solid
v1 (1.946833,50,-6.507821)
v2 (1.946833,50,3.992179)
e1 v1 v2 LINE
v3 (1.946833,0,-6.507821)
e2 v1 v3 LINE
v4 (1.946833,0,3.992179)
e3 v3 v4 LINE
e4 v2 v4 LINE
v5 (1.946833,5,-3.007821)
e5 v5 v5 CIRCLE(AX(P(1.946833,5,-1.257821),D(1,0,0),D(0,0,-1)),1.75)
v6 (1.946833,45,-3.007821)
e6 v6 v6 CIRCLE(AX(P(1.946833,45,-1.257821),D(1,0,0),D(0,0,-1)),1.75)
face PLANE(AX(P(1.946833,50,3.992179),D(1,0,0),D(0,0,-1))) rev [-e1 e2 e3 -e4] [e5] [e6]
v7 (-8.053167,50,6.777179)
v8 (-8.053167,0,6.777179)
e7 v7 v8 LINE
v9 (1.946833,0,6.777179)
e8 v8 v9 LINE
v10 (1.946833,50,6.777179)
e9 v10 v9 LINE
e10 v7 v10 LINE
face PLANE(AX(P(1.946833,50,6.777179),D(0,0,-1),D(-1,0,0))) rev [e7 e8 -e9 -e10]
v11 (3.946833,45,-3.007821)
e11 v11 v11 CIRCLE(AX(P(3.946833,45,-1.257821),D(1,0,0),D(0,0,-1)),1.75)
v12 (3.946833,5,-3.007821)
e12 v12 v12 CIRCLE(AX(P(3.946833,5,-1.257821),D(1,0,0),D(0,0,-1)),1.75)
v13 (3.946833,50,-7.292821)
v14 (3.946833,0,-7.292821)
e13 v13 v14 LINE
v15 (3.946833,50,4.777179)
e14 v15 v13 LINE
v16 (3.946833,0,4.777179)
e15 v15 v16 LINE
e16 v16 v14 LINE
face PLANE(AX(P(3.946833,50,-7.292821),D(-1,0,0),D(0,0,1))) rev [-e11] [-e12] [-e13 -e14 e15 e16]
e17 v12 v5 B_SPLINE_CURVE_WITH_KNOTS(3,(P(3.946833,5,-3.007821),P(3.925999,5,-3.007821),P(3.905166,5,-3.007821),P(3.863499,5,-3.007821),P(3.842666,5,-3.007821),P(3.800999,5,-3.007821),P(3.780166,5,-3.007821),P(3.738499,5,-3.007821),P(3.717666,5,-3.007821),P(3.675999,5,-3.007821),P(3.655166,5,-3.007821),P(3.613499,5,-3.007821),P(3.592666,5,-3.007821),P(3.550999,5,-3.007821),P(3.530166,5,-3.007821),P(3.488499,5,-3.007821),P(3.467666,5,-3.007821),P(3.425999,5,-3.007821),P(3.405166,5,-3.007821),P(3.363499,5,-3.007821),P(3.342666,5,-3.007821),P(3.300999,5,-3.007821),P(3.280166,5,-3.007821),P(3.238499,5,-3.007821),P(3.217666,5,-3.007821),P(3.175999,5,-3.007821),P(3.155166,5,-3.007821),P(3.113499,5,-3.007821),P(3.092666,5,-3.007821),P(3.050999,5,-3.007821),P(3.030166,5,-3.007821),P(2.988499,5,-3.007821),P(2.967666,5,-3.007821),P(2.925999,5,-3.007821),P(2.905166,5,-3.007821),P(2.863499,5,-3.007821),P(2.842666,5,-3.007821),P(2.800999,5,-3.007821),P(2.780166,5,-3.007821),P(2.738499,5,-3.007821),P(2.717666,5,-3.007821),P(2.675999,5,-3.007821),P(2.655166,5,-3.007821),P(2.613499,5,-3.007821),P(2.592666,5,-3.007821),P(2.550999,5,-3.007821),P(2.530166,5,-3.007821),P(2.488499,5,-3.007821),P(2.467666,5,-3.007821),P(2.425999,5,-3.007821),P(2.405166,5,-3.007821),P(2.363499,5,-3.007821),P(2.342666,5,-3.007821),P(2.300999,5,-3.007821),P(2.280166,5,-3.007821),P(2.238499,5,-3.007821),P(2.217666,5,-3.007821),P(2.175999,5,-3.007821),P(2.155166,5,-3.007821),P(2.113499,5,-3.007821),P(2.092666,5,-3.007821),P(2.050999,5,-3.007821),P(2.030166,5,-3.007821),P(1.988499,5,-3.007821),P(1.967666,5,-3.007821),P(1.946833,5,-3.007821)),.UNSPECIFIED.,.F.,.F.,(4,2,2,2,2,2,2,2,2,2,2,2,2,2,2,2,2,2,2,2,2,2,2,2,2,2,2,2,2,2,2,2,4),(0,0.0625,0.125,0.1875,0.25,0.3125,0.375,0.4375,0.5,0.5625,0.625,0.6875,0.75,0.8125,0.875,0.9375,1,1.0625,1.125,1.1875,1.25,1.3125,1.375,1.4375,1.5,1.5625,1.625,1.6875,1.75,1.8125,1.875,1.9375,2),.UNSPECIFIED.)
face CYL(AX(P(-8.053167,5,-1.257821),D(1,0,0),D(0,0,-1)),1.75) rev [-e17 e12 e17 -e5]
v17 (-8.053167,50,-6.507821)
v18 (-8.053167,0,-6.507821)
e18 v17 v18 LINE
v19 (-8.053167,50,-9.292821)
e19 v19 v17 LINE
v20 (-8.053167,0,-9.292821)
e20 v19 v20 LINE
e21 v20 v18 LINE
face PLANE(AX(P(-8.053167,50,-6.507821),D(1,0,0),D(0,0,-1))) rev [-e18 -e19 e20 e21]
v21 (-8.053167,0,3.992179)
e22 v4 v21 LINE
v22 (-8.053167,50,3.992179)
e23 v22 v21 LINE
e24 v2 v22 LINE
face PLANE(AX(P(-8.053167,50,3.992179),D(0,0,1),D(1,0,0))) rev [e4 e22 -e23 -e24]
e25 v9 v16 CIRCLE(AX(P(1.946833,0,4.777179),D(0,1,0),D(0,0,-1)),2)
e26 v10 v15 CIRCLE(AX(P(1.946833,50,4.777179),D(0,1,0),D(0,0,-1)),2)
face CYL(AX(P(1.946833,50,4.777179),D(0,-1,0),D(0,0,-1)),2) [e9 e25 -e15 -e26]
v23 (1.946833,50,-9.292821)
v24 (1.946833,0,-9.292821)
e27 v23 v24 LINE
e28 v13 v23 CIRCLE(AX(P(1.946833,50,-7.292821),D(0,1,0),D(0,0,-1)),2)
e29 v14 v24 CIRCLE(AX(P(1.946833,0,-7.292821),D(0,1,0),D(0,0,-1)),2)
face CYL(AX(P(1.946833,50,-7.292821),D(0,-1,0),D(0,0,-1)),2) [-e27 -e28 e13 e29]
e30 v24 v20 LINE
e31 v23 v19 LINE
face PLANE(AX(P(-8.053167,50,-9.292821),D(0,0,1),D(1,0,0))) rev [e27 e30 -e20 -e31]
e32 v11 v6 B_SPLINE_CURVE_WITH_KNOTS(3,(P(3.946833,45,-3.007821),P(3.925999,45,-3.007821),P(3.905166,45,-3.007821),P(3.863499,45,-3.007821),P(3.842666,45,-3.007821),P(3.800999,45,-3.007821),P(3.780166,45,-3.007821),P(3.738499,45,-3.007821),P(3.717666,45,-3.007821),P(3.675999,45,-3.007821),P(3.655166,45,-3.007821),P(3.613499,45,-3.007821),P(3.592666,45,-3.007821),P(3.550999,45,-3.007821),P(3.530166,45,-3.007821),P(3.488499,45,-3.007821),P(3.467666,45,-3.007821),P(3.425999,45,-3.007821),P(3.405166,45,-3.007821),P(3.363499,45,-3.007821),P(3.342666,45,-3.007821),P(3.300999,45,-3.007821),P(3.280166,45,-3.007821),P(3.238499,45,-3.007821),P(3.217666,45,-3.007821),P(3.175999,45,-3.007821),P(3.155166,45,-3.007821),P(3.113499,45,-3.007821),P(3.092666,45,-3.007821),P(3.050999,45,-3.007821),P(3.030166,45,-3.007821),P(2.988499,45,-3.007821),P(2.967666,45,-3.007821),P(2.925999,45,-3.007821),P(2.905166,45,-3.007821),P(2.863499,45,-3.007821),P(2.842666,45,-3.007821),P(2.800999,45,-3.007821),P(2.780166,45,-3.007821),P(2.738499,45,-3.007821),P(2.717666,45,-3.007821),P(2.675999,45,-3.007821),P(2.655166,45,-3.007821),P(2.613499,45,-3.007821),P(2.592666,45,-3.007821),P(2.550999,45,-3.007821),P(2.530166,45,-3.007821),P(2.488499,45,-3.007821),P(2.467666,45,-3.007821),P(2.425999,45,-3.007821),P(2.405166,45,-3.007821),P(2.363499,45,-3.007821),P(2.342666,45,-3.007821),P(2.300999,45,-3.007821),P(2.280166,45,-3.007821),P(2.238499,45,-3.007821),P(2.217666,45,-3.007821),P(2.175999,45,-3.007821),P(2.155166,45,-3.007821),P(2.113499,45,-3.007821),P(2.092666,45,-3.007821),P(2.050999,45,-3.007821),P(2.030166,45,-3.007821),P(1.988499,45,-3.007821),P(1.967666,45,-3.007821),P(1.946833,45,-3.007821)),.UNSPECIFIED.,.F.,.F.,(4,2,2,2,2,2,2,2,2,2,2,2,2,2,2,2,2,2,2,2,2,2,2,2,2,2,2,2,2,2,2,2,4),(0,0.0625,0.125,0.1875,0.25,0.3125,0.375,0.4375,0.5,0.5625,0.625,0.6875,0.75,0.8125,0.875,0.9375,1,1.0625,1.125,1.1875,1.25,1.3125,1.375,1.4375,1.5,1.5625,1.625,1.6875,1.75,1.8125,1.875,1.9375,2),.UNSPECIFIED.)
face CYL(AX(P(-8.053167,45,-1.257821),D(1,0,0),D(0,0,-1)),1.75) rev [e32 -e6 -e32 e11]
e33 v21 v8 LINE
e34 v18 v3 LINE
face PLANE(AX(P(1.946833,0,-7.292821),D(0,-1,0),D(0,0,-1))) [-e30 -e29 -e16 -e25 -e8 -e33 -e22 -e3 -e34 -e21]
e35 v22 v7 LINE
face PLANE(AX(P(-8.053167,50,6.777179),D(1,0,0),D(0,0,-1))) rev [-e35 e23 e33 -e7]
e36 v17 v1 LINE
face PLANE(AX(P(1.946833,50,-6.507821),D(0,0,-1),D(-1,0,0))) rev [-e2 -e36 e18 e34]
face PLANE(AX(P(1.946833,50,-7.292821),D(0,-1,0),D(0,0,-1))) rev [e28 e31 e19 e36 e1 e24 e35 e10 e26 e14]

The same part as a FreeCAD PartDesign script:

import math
import FreeCAD as App
import Part
import Sketcher

V = App.Vector
Q = App.Units.Quantity

doc = App.newDocument("Part")
body = doc.addObject("PartDesign::Body", "Body")

sketch1 = body.newObject("Sketcher::SketchObject", "Sketch")
sketch1.AttachmentSupport = (doc.getObject("XZ_Plane"), [""])
sketch1.MapMode = "FlatFace"
sketch1.addGeometry([
    Part.LineSegment(V(1.9, -9.3, 0), V(-8.1, -9.3, 0)),
    Part.LineSegment(V(-8.1, -9.3, 0), V(-8.1, -6.5, 0)),
    Part.LineSegment(V(-8.1, -6.5, 0), V(1.9, -6.5, 0)),
    Part.LineSegment(V(1.9, -6.5, 0), V(1.9, 4, 0)),
    Part.LineSegment(V(1.9, 4, 0), V(-8.1, 4, 0)),
    Part.LineSegment(V(-8.1, 4, 0), V(-8.1, 6.8, 0)),
    Part.LineSegment(V(-8.1, 6.8, 0), V(1.9, 6.8, 0)),
    Part.ArcOfCircle(Part.Circle(V(1.9, 4.8, 0), V(0, 0, 1), 2), math.radians(0), math.radians(90)),
    Part.LineSegment(V(3.9, 4.8, 0), V(3.9, -7.3, 0)),
    Part.ArcOfCircle(Part.Circle(V(1.9, -7.3, 0), V(0, 0, 1), 2), math.radians(-90), math.radians(0)),
], False)
sketch1.addConstraint([
    Sketcher.Constraint("Coincident", 0, 2, 1, 1),
    Sketcher.Constraint("Coincident", 1, 2, 2, 1),
    Sketcher.Constraint("Coincident", 2, 2, 3, 1),
    Sketcher.Constraint("Coincident", 3, 2, 4, 1),
    Sketcher.Constraint("Coincident", 4, 2, 5, 1),
    Sketcher.Constraint("Coincident", 5, 2, 6, 1),
    Sketcher.Constraint("Tangent", 6, 2, 7, 2),
    Sketcher.Constraint("Tangent", 7, 1, 8, 1),
    Sketcher.Constraint("Tangent", 8, 2, 9, 2),
    Sketcher.Constraint("Tangent", 9, 1, 0, 1),
    Sketcher.Constraint("Horizontal", 0),
    Sketcher.Constraint("Vertical", 1),
    Sketcher.Constraint("Horizontal", 2),
    Sketcher.Constraint("Vertical", 3),
    Sketcher.Constraint("Horizontal", 4),
    Sketcher.Constraint("Vertical", 5),
    Sketcher.Constraint("Horizontal", 6),
    Sketcher.Constraint("Vertical", 8),
    Sketcher.Constraint("Equal", 7, 9),
    Sketcher.Constraint("Vertical", 9, 3, 2, 2),
    Sketcher.Constraint("Vertical", 1, 2, 4, 2),
    Sketcher.Constraint("Equal", 1, 5),
    Sketcher.Constraint("Radius", 7, Q("2 mm")),
    Sketcher.Constraint("DistanceX", 0, 2, 0, 1, Q("10 mm")),
    Sketcher.Constraint("DistanceY", 3, 1, 3, 2, Q("10.5 mm")),
    Sketcher.Constraint("DistanceY", 8, 2, 8, 1, Q("12.07 mm")),
    Sketcher.Constraint("DistanceY", -1, 1, 7, 3, Q("4.777179 mm")),
    Sketcher.Constraint("DistanceX", -1, 1, 7, 3, Q("1.946833 mm")),
])
pad1 = body.newObject("PartDesign::Pad", "Pad")
pad1.Profile = sketch1
pad1.Length = 50
pad1.Reversed = True

sketch2 = body.newObject("Sketcher::SketchObject", "Sketch001")
sketch2.AttachmentSupport = (doc.getObject("YZ_Plane"), [""])
sketch2.MapMode = "FlatFace"
sketch2.AttachmentOffset = App.Placement(V(0, 0, 3.946833), App.Rotation())
sketch2.addGeometry([
    Part.Circle(V(45, -1.3, 0), V(0, 0, 1), 1.8),
    Part.Circle(V(5, -1.3, 0), V(0, 0, 1), 1.8),
], False)
sketch2.addConstraint([
    Sketcher.Constraint("Equal", 0, 1),
    Sketcher.Constraint("Horizontal", 0, 3, 1, 3),
    Sketcher.Constraint("Diameter", 0, Q("3.5 mm")),
    Sketcher.Constraint("DistanceX", -1, 1, 0, 3, Q("45 mm")),
    Sketcher.Constraint("DistanceX", -1, 1, 1, 3, Q("5 mm")),
    Sketcher.Constraint("DistanceY", 0, 3, -1, 1, Q("1.257821 mm")),
])
pocket1 = body.newObject("PartDesign::Pocket", "Pocket")
pocket1.Profile = sketch2
pocket1.Type = "ThroughAll"

doc.recompute()
